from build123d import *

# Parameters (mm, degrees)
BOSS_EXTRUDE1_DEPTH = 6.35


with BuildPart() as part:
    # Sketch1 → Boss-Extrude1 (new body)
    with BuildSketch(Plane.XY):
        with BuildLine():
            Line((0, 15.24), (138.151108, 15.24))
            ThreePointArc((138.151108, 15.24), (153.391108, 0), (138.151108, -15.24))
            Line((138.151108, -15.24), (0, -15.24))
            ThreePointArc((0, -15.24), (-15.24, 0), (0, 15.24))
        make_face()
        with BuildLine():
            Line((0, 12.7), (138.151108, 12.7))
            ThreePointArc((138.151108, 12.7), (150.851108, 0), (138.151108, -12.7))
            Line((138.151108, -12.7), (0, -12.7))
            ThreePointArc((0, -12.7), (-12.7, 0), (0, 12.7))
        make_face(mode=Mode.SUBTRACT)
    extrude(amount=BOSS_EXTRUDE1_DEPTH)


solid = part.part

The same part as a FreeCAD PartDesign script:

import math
import FreeCAD as App
import Part
import Sketcher
Q = App.Units.Quantity

doc = App.newDocument("Part")
params = doc.addObject("Spreadsheet::Sheet", "Params")
for row, (alias, value) in enumerate([
    ("sketch1_radius", "0.6 in"),
    ("sketch1_radius2", "0.5 in"),
    ("pad1_length", "0.25 in"),
], start=1):
    params.set(f"A{row}", alias)
    params.set(f"B{row}", "=" + value)
    params.setAlias(f"B{row}", alias)

body = doc.addObject("PartDesign::Body", "Body")

# Sketch on XY plane
sketch1 = doc.addObject("Sketcher::SketchObject", "Sketch")
body.addObject(sketch1)
sketch1.AttachmentSupport = (doc.XY_Plane, [""])
sketch1.MapMode = "FlatFace"
sketch1.addGeometry([
    Part.LineSegment(App.Vector(138, 15, 0), App.Vector(0, 15, 0)),  # 0
    Part.ArcOfCircle(Part.Circle(App.Vector(0, 0, 0), App.Vector(0, 0, 1), 15), math.radians(90), math.radians(270)),  # 1
    Part.LineSegment(App.Vector(0, -15, 0), App.Vector(138, -15, 0)),  # 2
    Part.ArcOfCircle(Part.Circle(App.Vector(138, 0, 0), App.Vector(0, 0, 1), 15), math.radians(-90), math.radians(90)),  # 3
    Part.LineSegment(App.Vector(0, 13, 0), App.Vector(138, 13, 0)),  # 4
    Part.ArcOfCircle(Part.Circle(App.Vector(138, 0, 0), App.Vector(0, 0, 1), 13), math.radians(-90), math.radians(90)),  # 5
    Part.LineSegment(App.Vector(138, -13, 0), App.Vector(0, -13, 0)),  # 6
    Part.ArcOfCircle(Part.Circle(App.Vector(0, 0, 0), App.Vector(0, 0, 1), 13), math.radians(90), math.radians(270)),  # 7
], False)
sketch1.addConstraint([
    Sketcher.Constraint("Tangent", 0, 2, 1, 1),
    Sketcher.Constraint("Tangent", 1, 2, 2, 1),
    Sketcher.Constraint("Tangent", 2, 2, 3, 1),
    Sketcher.Constraint("Tangent", 3, 2, 0, 1),
    Sketcher.Constraint("Tangent", 4, 2, 5, 2),
    Sketcher.Constraint("Tangent", 5, 1, 6, 1),
    Sketcher.Constraint("Tangent", 6, 2, 7, 2),
    Sketcher.Constraint("Tangent", 7, 1, 4, 1),
    Sketcher.Constraint("Horizontal", 0),
    Sketcher.Constraint("Horizontal", 2),
    Sketcher.Constraint("Horizontal", 4),
    Sketcher.Constraint("Horizontal", 6),
    Sketcher.Constraint("Coincident", 1, 3, -1, 1),
    Sketcher.Constraint("Coincident", 7, 3, -1, 1),
    Sketcher.Constraint("Vertical", 5, 3, 2, 2),
    Sketcher.Constraint("Radius", 1, Q("0.6 in")),
    Sketcher.Constraint("Radius", 5, Q("0.5 in")),
    Sketcher.Constraint("DistanceX", 0, 2, 0, 1, 138.151108),
])
sketch1.setExpression("Constraints[15]", "Params.sketch1_radius")
sketch1.setExpression("Constraints[16]", "Params.sketch1_radius2")
pad1 = doc.addObject("PartDesign::Pad", "Pad")
body.addObject(pad1)
pad1.Profile = sketch1
pad1.setExpression("Length", "Params.pad1_length")

doc.recompute()
